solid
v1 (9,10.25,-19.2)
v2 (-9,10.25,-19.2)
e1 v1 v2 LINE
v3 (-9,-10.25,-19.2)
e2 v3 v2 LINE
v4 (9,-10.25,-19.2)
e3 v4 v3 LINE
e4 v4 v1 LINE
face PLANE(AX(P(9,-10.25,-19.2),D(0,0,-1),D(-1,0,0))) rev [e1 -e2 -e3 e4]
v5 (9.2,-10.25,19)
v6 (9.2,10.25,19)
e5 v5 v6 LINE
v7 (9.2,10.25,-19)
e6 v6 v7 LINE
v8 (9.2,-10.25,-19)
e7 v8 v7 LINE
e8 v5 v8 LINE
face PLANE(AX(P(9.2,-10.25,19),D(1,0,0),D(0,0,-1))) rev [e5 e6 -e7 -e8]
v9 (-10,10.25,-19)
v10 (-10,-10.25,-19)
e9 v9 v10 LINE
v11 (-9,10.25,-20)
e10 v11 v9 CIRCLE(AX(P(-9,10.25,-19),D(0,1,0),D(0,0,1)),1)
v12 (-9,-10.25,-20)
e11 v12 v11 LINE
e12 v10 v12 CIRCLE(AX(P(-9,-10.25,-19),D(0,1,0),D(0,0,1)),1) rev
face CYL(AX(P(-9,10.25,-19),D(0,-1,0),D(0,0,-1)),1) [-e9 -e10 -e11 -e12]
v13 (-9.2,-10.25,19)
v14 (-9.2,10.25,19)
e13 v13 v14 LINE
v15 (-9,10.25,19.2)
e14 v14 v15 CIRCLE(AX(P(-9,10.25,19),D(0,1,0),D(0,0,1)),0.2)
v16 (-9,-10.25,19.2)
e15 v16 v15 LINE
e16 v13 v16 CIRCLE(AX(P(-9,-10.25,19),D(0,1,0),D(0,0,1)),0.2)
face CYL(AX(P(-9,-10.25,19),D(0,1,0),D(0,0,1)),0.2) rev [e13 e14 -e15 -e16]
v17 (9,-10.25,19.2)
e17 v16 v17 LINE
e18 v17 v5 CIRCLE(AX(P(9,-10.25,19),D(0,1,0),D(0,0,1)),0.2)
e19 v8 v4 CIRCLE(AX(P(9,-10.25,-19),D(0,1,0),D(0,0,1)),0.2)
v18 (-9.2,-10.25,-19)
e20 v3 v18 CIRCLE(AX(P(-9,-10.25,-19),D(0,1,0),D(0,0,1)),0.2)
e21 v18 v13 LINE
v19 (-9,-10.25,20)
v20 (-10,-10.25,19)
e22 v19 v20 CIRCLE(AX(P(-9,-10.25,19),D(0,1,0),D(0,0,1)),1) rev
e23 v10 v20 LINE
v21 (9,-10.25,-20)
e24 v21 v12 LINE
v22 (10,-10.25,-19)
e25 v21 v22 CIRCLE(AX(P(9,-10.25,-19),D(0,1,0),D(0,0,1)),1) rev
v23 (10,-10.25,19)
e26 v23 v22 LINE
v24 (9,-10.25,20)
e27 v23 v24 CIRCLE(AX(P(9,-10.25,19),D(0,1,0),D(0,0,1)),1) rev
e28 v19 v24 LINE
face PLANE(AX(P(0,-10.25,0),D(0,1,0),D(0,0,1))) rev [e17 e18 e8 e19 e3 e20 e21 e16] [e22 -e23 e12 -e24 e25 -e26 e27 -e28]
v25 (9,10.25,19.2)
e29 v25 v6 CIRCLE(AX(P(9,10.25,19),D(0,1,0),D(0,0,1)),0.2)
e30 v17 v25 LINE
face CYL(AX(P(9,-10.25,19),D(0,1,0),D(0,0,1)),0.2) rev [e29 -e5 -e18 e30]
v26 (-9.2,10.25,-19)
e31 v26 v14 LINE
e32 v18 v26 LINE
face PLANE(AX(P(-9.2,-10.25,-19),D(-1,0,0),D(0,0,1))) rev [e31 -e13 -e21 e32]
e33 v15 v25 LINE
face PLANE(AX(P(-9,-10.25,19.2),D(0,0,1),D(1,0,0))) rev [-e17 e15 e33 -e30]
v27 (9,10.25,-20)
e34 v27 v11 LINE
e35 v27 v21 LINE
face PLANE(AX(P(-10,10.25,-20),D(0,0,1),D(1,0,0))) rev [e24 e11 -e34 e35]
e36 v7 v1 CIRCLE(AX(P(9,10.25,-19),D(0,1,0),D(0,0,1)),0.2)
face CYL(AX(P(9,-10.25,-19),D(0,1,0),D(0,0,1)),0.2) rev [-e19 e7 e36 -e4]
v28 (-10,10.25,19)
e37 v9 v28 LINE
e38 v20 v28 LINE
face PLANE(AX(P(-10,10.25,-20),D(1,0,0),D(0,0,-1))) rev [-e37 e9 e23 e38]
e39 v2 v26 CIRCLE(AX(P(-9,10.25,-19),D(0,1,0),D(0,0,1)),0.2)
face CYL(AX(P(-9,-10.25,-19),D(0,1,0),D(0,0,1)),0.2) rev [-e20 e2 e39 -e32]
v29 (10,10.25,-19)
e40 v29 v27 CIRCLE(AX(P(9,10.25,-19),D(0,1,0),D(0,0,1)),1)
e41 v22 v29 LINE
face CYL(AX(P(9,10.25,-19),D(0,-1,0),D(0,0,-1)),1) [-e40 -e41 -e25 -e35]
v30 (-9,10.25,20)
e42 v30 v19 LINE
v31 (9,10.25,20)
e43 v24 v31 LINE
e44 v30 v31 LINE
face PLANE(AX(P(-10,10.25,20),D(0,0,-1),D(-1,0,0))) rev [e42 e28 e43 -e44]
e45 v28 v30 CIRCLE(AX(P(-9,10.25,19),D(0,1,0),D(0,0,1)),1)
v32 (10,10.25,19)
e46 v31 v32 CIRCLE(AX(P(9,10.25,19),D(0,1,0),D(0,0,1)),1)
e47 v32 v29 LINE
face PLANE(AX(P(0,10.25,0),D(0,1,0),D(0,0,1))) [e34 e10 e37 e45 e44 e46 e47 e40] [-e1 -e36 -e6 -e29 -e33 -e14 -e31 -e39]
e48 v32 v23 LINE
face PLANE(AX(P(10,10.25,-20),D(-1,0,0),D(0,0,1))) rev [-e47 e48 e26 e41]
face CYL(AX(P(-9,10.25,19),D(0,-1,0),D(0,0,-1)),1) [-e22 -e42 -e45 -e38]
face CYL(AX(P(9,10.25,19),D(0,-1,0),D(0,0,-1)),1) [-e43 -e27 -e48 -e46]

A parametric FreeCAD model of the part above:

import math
import FreeCAD as App
import Part
import Sketcher

V = App.Vector


def edges_at(feature, points):
    """Names of the edges that pass closest to the given points."""
    edges = feature.Shape.Edges
    near = lambda p: min(range(len(edges)), key=lambda i: edges[i].distToShape(Part.Vertex(*p))[0])
    return sorted({f"Edge{near(p) + 1}" for p in points})


def add_polygon(sketch, points):
    """Adds a closed chain of lines whose ends are joined by coincident constraints."""
    first, n = sketch.GeometryCount, len(points)
    for a, b in zip(points, points[1:] + points[:1]):
        sketch.addGeometry(Part.LineSegment(App.Vector(*a, 0), App.Vector(*b, 0)), False)
    for i in range(n):
        sketch.addConstraint(Sketcher.Constraint("Coincident", first + i, 2, first + (i + 1) % n, 1))

doc = App.newDocument("Part")
body = doc.addObject("PartDesign::Body", "Body")

# Sketch on XZ plane
sketch1 = doc.addObject("Sketcher::SketchObject", "Sketch")
body.addObject(sketch1)
sketch1.AttachmentSupport = (doc.XZ_Plane, [""])
sketch1.MapMode = "FlatFace"
add_polygon(sketch1, [(-10, -20), (-10, 20), (10, 20), (10, -20)])  # lines 0-3
sketch1.addConstraint([
    Sketcher.Constraint("Vertical", 0),
    Sketcher.Constraint("Horizontal", 1),
    Sketcher.Constraint("Vertical", 2),
    Sketcher.Constraint("Horizontal", 3),
    Sketcher.Constraint("Symmetric", 0, 2, 2, 2, -1, 1),
    Sketcher.Constraint("DistanceX", 1, 1, 1, 2, 20.0),
    Sketcher.Constraint("DistanceY", 0, 1, 0, 2, 40.0),
])
pad1 = doc.addObject("PartDesign::Pad", "Pad")
body.addObject(pad1)
pad1.Profile = sketch1
pad1.Length = 20.5
pad1.Midplane = True
doc.recompute()

fillet = doc.addObject("PartDesign::Fillet", "Fillet")
body.addObject(fillet)
fillet.Base = (pad1, edges_at(pad1, [
    (10, 0, 20),
    (-10, 0, 20),
    (-10, 0, -20),
    (10, 0, -20),
]))
fillet.Radius = 1

# Sketch on XZ plane
sketch2 = doc.addObject("Sketcher::SketchObject", "Sketch001")
body.addObject(sketch2)
sketch2.AttachmentSupport = (doc.XZ_Plane, [""])
sketch2.MapMode = "FlatFace"
sketch2.AttachmentOffset = App.Placement(V(0, 0, -10.25), App.Rotation())
sketch2.addGeometry([
    Part.LineSegment(V(9, -19.2, 0), V(-9, -19.2, 0)),  # 0
    Part.ArcOfCircle(Part.Circle(V(-9, -19, 0), V(0, 0, 1), 0.2), math.radians(-180), math.radians(-90)),  # 1
    Part.LineSegment(V(-9.2, -19, 0), V(-9.2, 19, 0)),  # 2
    Part.ArcOfCircle(Part.Circle(V(-9, 19, 0), V(0, 0, 1), 0.2), math.radians(90), math.radians(180)),  # 3
    Part.LineSegment(V(-9, 19.2, 0), V(9, 19.2, 0)),  # 4
    Part.ArcOfCircle(Part.Circle(V(9, 19, 0), V(0, 0, 1), 0.2), math.radians(0), math.radians(90)),  # 5
    Part.LineSegment(V(9.2, 19, 0), V(9.2, -19, 0)),  # 6
    Part.ArcOfCircle(Part.Circle(V(9, -19, 0), V(0, 0, 1), 0.2), math.radians(-90), math.radians(0)),  # 7
], False)
sketch2.addConstraint([
    Sketcher.Constraint("Tangent", 0, 2, 1, 2),
    Sketcher.Constraint("Tangent", 1, 1, 2, 1),
    Sketcher.Constraint("Tangent", 2, 2, 3, 2),
    Sketcher.Constraint("Tangent", 3, 1, 4, 1),
    Sketcher.Constraint("Tangent", 4, 2, 5, 2),
    Sketcher.Constraint("Tangent", 5, 1, 6, 1),
    Sketcher.Constraint("Tangent", 6, 2, 7, 2),
    Sketcher.Constraint("Tangent", 7, 1, 0, 1),
    Sketcher.Constraint("Horizontal", 0),
    Sketcher.Constraint("Vertical", 2),
    Sketcher.Constraint("Horizontal", 4),
    Sketcher.Constraint("Vertical", 6),
    Sketcher.Constraint("Equal", 1, 3),
    Sketcher.Constraint("Equal", 3, 5),
    Sketcher.Constraint("Equal", 5, 7),
    Sketcher.Constraint("Symmetric", 1, 3, 5, 3, -1, 1),
    Sketcher.Constraint("Radius", 1, 0.2),
    Sketcher.Constraint("DistanceX", 0, 2, 0, 1, 18.0),
    Sketcher.Constraint("DistanceY", 2, 1, 2, 2, 38.0),
])
pocket1 = doc.addObject("PartDesign::Pocket", "Pocket")
body.addObject(pocket1)
pocket1.Profile = sketch2
pocket1.Type = "ThroughAll"
pocket1.Reversed = True

doc.recompute()
